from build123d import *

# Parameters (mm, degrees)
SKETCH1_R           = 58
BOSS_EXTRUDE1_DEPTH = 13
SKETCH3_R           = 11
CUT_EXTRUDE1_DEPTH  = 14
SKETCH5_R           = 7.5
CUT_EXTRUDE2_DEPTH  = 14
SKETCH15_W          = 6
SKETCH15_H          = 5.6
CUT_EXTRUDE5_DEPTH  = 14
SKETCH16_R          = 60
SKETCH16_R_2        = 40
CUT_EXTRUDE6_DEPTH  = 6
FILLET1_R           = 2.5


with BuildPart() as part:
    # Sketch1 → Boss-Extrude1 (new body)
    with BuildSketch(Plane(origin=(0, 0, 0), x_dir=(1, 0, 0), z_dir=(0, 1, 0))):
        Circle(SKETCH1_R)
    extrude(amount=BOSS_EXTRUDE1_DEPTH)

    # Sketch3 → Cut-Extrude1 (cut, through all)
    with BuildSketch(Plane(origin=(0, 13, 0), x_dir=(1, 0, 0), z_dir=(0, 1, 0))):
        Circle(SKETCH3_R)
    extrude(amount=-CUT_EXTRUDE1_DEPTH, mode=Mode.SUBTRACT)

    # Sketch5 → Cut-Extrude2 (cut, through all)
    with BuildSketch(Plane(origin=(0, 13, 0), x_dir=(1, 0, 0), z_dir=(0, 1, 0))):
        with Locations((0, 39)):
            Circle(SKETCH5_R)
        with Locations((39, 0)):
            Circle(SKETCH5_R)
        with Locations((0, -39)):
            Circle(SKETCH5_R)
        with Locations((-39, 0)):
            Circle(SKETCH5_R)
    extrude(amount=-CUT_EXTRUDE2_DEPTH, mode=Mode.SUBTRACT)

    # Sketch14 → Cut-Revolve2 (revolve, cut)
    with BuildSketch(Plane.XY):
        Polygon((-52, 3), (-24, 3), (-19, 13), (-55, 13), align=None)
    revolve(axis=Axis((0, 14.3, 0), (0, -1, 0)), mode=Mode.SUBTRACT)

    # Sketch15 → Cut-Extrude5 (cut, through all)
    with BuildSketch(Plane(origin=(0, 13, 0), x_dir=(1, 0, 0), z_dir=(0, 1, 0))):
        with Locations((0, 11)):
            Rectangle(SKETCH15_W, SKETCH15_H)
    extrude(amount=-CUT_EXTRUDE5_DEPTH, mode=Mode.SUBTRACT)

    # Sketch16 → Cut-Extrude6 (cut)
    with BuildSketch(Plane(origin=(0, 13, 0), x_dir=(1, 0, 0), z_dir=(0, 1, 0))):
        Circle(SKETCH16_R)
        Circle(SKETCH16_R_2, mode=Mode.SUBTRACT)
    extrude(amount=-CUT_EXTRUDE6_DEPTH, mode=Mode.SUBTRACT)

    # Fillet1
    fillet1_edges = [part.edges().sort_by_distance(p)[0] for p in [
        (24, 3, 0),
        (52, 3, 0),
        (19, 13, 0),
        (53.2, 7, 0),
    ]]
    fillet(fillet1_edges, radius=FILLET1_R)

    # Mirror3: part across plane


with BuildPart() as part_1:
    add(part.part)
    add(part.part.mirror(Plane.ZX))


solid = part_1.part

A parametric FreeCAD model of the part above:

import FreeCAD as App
import Part
import Sketcher

V = App.Vector
Q = App.Units.Quantity


def edges_at(feature, points):
    """Names of the edges that pass closest to the given points."""
    edges = feature.Shape.Edges
    near = lambda p: min(range(len(edges)), key=lambda i: edges[i].distToShape(Part.Vertex(*p))[0])
    return sorted({f"Edge{near(p) + 1}" for p in points})

doc = App.newDocument("Part")
params = doc.addObject("Spreadsheet::Sheet", "Params")
for row, (alias, value) in enumerate([
    ("sketch1_diameter", "116 mm"),
    ("pad1_length", "13 mm"),
    ("sketch2_diameter", "22 mm"),
    ("sketch3_diameter", "15 mm"),
    ("sketch4_width", "28 mm"),
    ("sketch4_width2", "36 mm"),
    ("groove_angle", "360 deg"),
    ("sketch5_width", "6 mm"),
    ("sketch5_height", "5.6 mm"),
    ("sketch6_diameter", "120 mm"),
    ("sketch6_diameter2", "80 mm"),
    ("pocket4_length", "6 mm"),
    ("fillet_radius", "2.5 mm"),
], start=1):
    params.set(f"A{row}", alias)
    params.set(f"B{row}", "=" + value)
    params.setAlias(f"B{row}", alias)

body = doc.addObject("PartDesign::Body", "Body")

sketch1 = doc.addObject("Sketcher::SketchObject", "Sketch")
body.addObject(sketch1)
sketch1.AttachmentSupport = (doc.XZ_Plane, [""])
sketch1.MapMode = "FlatFace"
sketch1.addGeometry(Part.Circle(V(0, 0, 0), V(0, 0, 1), 58), False)
sketch1.addConstraint(Sketcher.Constraint("Coincident", 0, 3, -1, 1))
sketch1.addConstraint(Sketcher.Constraint("Diameter", 0, Q("116 mm")))
sketch1.setExpression("Constraints[1]", "Params.sketch1_diameter")
pad1 = doc.addObject("PartDesign::Pad", "Pad")
body.addObject(pad1)
pad1.Profile = sketch1
pad1.setExpression("Length", "Params.pad1_length")
pad1.Reversed = True

sketch2 = doc.addObject("Sketcher::SketchObject", "Sketch001")
body.addObject(sketch2)
sketch2.AttachmentSupport = (doc.XZ_Plane, [""])
sketch2.MapMode = "FlatFace"
sketch2.AttachmentOffset = App.Placement(V(0, 0, -13), App.Rotation())
sketch2.addGeometry(Part.Circle(V(0, 0, 0), V(0, 0, 1), 11), False)
sketch2.addConstraint(Sketcher.Constraint("Coincident", 0, 3, -1, 1))
sketch2.addConstraint(Sketcher.Constraint("Diameter", 0, Q("22 mm")))
sketch2.setExpression("Constraints[1]", "Params.sketch2_diameter")
pocket1 = doc.addObject("PartDesign::Pocket", "Pocket")
body.addObject(pocket1)
pocket1.Profile = sketch2
pocket1.Type = "ThroughAll"
pocket1.Reversed = True

sketch3 = doc.addObject("Sketcher::SketchObject", "Sketch002")
body.addObject(sketch3)
sketch3.AttachmentSupport = (doc.XZ_Plane, [""])
sketch3.MapMode = "FlatFace"
sketch3.AttachmentOffset = App.Placement(V(0, 0, -13), App.Rotation())
sketch3.addGeometry(Part.Circle(V(0, -39, 0), V(0, 0, 1), 7.5), False)
sketch3.addGeometry(Part.Circle(V(39, 0, 0), V(0, 0, 1), 7.5), False)
sketch3.addGeometry(Part.Circle(V(0, 39, 0), V(0, 0, 1), 7.5), False)
sketch3.addGeometry(Part.Circle(V(-39, 0, 0), V(0, 0, 1), 7.5), False)
sketch3.addConstraint(Sketcher.Constraint("Equal", 0, 1))
sketch3.addConstraint(Sketcher.Constraint("Equal", 1, 2))
sketch3.addConstraint(Sketcher.Constraint("Equal", 2, 3))
sketch3.addConstraint(Sketcher.Constraint("Symmetric", 0, 3, 2, 3, -1, 1))
sketch3.addConstraint(Sketcher.Constraint("Symmetric", 1, 3, 3, 3, -1, 1))
sketch3.addConstraint(Sketcher.Constraint("PointOnObject", 0, 3, -2))
sketch3.addConstraint(Sketcher.Constraint("PointOnObject", 1, 3, -1))
sketch3.addConstraint(Sketcher.Constraint("Diameter", 0, Q("15 mm")))
sketch3.addConstraint(Sketcher.Constraint("DistanceY", 0, 3, -1, 1, Q("39 mm")))
sketch3.addConstraint(Sketcher.Constraint("DistanceX", -1, 1, 1, 3, Q("39 mm")))
sketch3.setExpression("Constraints[7]", "Params.sketch3_diameter")
pocket2 = doc.addObject("PartDesign::Pocket", "Pocket001")
body.addObject(pocket2)
pocket2.Profile = sketch3
pocket2.Type = "ThroughAll"
pocket2.Reversed = True

sketch4 = doc.addObject("Sketcher::SketchObject", "Sketch003")
body.addObject(sketch4)
sketch4.AttachmentSupport = (doc.XY_Plane, [""])
sketch4.MapMode = "FlatFace"
sketch4.addGeometry(Part.LineSegment(V(-52, 3, 0), V(-24, 3, 0)), False)
sketch4.addGeometry(Part.LineSegment(V(-24, 3, 0), V(-19, 13, 0)), False)
sketch4.addGeometry(Part.LineSegment(V(-19, 13, 0), V(-55, 13, 0)), False)
sketch4.addGeometry(Part.LineSegment(V(-55, 13, 0), V(-52, 3, 0)), False)
sketch4.addConstraint(Sketcher.Constraint("Coincident", 0, 2, 1, 1))
sketch4.addConstraint(Sketcher.Constraint("Coincident", 1, 2, 2, 1))
sketch4.addConstraint(Sketcher.Constraint("Coincident", 2, 2, 3, 1))
sketch4.addConstraint(Sketcher.Constraint("Coincident", 3, 2, 0, 1))
sketch4.addConstraint(Sketcher.Constraint("Horizontal", 0))
sketch4.addConstraint(Sketcher.Constraint("Horizontal", 2))
sketch4.addConstraint(Sketcher.Constraint("DistanceX", 0, 1, 0, 2, Q("28 mm")))
sketch4.addConstraint(Sketcher.Constraint("DistanceX", 2, 2, 2, 1, Q("36 mm")))
sketch4.addConstraint(Sketcher.Constraint("DistanceX", 0, 2, -1, 1, Q("24 mm")))
sketch4.addConstraint(Sketcher.Constraint("DistanceY", -1, 1, 0, 2, Q("3 mm")))
sketch4.addConstraint(Sketcher.Constraint("DistanceX", 1, 2, -1, 1, Q("19 mm")))
sketch4.addConstraint(Sketcher.Constraint("DistanceY", -1, 1, 1, 2, Q("13 mm")))
sketch4.setExpression("Constraints[6]", "Params.sketch4_width")
sketch4.setExpression("Constraints[7]", "Params.sketch4_width2")
groove = doc.addObject("PartDesign::Groove", "Groove")
body.addObject(groove)
groove.Profile = sketch4
groove.ReferenceAxis = (sketch4, ["V_Axis"])
groove.setExpression("Angle", "Params.groove_angle")

sketch5 = doc.addObject("Sketcher::SketchObject", "Sketch004")
body.addObject(sketch5)
sketch5.AttachmentSupport = (doc.XZ_Plane, [""])
sketch5.MapMode = "FlatFace"
sketch5.AttachmentOffset = App.Placement(V(0, 0, -13), App.Rotation())
sketch5.addGeometry(Part.LineSegment(V(-3, -13.8, 0), V(-3, -8.2, 0)), False)
sketch5.addGeometry(Part.LineSegment(V(-3, -8.2, 0), V(3, -8.2, 0)), False)
sketch5.addGeometry(Part.LineSegment(V(3, -8.2, 0), V(3, -13.8, 0)), False)
sketch5.addGeometry(Part.LineSegment(V(3, -13.8, 0), V(-3, -13.8, 0)), False)
sketch5.addConstraint(Sketcher.Constraint("Coincident", 0, 2, 1, 1))
sketch5.addConstraint(Sketcher.Constraint("Coincident", 1, 2, 2, 1))
sketch5.addConstraint(Sketcher.Constraint("Coincident", 2, 2, 3, 1))
sketch5.addConstraint(Sketcher.Constraint("Coincident", 3, 2, 0, 1))
sketch5.addConstraint(Sketcher.Constraint("Vertical", 0))
sketch5.addConstraint(Sketcher.Constraint("Horizontal", 1))
sketch5.addConstraint(Sketcher.Constraint("Vertical", 2))
sketch5.addConstraint(Sketcher.Constraint("Horizontal", 3))
sketch5.addConstraint(Sketcher.Constraint("DistanceX", 1, 1, 1, 2, Q("6 mm")))
sketch5.addConstraint(Sketcher.Constraint("DistanceY", 0, 1, 0, 2, Q("5.6 mm")))
sketch5.addConstraint(Sketcher.Constraint("DistanceX", 0, 2, -1, 1, Q("3 mm")))
sketch5.addConstraint(Sketcher.Constraint("DistanceY", 0, 2, -1, 1, Q("8.2 mm")))
sketch5.setExpression("Constraints[8]", "Params.sketch5_width")
sketch5.setExpression("Constraints[9]", "Params.sketch5_height")
pocket3 = doc.addObject("PartDesign::Pocket", "Pocket002")
body.addObject(pocket3)
pocket3.Profile = sketch5
pocket3.Type = "ThroughAll"
pocket3.Reversed = True

sketch6 = doc.addObject("Sketcher::SketchObject", "Sketch005")
body.addObject(sketch6)
sketch6.AttachmentSupport = (doc.XZ_Plane, [""])
sketch6.MapMode = "FlatFace"
sketch6.AttachmentOffset = App.Placement(V(0, 0, -13), App.Rotation())
sketch6.addGeometry(Part.Circle(V(0, 0, 0), V(0, 0, 1), 60), False)
sketch6.addGeometry(Part.Circle(V(0, 0, 0), V(0, 0, 1), 40), False)
sketch6.addConstraint(Sketcher.Constraint("Coincident", 0, 3, -1, 1))
sketch6.addConstraint(Sketcher.Constraint("Coincident", 1, 3, -1, 1))
sketch6.addConstraint(Sketcher.Constraint("Diameter", 0, Q("120 mm")))
sketch6.addConstraint(Sketcher.Constraint("Diameter", 1, Q("80 mm")))
sketch6.setExpression("Constraints[2]", "Params.sketch6_diameter")
sketch6.setExpression("Constraints[3]", "Params.sketch6_diameter2")
pocket4 = doc.addObject("PartDesign::Pocket", "Pocket003")
body.addObject(pocket4)
pocket4.Profile = sketch6
pocket4.setExpression("Length", "Params.pocket4_length")
pocket4.Reversed = True
doc.recompute()

fillet = doc.addObject("PartDesign::Fillet", "Fillet")
body.addObject(fillet)
fillet.Base = (pocket4, edges_at(pocket4, [
    (24, 3, 0),
    (52, 3, 0),
    (19, 13, 0),
    (53.2, 7, 0),
]))
fillet.setExpression("Radius", "Params.fillet_radius")
body2 = doc.addObject("PartDesign::Body", "Body001")
doc.recompute()

body2.BaseFeature = body
doc.recompute()

mirroring = doc.addObject("Part::Mirroring", "Mirroring")
mirroring.Source = body
mirroring.Base = V(0, 0, 0)
mirroring.Normal = V(0, 1, 0)
body3 = doc.addObject("PartDesign::Body", "Body002")
body3.BaseFeature = mirroring
boolean = doc.addObject("PartDesign::Boolean", "Boolean")
body2.addObject(boolean)
boolean.Type = "Fuse"
boolean.addObjects([body3])
doc.recompute()
mirroring.Visibility = False

doc.recompute()
